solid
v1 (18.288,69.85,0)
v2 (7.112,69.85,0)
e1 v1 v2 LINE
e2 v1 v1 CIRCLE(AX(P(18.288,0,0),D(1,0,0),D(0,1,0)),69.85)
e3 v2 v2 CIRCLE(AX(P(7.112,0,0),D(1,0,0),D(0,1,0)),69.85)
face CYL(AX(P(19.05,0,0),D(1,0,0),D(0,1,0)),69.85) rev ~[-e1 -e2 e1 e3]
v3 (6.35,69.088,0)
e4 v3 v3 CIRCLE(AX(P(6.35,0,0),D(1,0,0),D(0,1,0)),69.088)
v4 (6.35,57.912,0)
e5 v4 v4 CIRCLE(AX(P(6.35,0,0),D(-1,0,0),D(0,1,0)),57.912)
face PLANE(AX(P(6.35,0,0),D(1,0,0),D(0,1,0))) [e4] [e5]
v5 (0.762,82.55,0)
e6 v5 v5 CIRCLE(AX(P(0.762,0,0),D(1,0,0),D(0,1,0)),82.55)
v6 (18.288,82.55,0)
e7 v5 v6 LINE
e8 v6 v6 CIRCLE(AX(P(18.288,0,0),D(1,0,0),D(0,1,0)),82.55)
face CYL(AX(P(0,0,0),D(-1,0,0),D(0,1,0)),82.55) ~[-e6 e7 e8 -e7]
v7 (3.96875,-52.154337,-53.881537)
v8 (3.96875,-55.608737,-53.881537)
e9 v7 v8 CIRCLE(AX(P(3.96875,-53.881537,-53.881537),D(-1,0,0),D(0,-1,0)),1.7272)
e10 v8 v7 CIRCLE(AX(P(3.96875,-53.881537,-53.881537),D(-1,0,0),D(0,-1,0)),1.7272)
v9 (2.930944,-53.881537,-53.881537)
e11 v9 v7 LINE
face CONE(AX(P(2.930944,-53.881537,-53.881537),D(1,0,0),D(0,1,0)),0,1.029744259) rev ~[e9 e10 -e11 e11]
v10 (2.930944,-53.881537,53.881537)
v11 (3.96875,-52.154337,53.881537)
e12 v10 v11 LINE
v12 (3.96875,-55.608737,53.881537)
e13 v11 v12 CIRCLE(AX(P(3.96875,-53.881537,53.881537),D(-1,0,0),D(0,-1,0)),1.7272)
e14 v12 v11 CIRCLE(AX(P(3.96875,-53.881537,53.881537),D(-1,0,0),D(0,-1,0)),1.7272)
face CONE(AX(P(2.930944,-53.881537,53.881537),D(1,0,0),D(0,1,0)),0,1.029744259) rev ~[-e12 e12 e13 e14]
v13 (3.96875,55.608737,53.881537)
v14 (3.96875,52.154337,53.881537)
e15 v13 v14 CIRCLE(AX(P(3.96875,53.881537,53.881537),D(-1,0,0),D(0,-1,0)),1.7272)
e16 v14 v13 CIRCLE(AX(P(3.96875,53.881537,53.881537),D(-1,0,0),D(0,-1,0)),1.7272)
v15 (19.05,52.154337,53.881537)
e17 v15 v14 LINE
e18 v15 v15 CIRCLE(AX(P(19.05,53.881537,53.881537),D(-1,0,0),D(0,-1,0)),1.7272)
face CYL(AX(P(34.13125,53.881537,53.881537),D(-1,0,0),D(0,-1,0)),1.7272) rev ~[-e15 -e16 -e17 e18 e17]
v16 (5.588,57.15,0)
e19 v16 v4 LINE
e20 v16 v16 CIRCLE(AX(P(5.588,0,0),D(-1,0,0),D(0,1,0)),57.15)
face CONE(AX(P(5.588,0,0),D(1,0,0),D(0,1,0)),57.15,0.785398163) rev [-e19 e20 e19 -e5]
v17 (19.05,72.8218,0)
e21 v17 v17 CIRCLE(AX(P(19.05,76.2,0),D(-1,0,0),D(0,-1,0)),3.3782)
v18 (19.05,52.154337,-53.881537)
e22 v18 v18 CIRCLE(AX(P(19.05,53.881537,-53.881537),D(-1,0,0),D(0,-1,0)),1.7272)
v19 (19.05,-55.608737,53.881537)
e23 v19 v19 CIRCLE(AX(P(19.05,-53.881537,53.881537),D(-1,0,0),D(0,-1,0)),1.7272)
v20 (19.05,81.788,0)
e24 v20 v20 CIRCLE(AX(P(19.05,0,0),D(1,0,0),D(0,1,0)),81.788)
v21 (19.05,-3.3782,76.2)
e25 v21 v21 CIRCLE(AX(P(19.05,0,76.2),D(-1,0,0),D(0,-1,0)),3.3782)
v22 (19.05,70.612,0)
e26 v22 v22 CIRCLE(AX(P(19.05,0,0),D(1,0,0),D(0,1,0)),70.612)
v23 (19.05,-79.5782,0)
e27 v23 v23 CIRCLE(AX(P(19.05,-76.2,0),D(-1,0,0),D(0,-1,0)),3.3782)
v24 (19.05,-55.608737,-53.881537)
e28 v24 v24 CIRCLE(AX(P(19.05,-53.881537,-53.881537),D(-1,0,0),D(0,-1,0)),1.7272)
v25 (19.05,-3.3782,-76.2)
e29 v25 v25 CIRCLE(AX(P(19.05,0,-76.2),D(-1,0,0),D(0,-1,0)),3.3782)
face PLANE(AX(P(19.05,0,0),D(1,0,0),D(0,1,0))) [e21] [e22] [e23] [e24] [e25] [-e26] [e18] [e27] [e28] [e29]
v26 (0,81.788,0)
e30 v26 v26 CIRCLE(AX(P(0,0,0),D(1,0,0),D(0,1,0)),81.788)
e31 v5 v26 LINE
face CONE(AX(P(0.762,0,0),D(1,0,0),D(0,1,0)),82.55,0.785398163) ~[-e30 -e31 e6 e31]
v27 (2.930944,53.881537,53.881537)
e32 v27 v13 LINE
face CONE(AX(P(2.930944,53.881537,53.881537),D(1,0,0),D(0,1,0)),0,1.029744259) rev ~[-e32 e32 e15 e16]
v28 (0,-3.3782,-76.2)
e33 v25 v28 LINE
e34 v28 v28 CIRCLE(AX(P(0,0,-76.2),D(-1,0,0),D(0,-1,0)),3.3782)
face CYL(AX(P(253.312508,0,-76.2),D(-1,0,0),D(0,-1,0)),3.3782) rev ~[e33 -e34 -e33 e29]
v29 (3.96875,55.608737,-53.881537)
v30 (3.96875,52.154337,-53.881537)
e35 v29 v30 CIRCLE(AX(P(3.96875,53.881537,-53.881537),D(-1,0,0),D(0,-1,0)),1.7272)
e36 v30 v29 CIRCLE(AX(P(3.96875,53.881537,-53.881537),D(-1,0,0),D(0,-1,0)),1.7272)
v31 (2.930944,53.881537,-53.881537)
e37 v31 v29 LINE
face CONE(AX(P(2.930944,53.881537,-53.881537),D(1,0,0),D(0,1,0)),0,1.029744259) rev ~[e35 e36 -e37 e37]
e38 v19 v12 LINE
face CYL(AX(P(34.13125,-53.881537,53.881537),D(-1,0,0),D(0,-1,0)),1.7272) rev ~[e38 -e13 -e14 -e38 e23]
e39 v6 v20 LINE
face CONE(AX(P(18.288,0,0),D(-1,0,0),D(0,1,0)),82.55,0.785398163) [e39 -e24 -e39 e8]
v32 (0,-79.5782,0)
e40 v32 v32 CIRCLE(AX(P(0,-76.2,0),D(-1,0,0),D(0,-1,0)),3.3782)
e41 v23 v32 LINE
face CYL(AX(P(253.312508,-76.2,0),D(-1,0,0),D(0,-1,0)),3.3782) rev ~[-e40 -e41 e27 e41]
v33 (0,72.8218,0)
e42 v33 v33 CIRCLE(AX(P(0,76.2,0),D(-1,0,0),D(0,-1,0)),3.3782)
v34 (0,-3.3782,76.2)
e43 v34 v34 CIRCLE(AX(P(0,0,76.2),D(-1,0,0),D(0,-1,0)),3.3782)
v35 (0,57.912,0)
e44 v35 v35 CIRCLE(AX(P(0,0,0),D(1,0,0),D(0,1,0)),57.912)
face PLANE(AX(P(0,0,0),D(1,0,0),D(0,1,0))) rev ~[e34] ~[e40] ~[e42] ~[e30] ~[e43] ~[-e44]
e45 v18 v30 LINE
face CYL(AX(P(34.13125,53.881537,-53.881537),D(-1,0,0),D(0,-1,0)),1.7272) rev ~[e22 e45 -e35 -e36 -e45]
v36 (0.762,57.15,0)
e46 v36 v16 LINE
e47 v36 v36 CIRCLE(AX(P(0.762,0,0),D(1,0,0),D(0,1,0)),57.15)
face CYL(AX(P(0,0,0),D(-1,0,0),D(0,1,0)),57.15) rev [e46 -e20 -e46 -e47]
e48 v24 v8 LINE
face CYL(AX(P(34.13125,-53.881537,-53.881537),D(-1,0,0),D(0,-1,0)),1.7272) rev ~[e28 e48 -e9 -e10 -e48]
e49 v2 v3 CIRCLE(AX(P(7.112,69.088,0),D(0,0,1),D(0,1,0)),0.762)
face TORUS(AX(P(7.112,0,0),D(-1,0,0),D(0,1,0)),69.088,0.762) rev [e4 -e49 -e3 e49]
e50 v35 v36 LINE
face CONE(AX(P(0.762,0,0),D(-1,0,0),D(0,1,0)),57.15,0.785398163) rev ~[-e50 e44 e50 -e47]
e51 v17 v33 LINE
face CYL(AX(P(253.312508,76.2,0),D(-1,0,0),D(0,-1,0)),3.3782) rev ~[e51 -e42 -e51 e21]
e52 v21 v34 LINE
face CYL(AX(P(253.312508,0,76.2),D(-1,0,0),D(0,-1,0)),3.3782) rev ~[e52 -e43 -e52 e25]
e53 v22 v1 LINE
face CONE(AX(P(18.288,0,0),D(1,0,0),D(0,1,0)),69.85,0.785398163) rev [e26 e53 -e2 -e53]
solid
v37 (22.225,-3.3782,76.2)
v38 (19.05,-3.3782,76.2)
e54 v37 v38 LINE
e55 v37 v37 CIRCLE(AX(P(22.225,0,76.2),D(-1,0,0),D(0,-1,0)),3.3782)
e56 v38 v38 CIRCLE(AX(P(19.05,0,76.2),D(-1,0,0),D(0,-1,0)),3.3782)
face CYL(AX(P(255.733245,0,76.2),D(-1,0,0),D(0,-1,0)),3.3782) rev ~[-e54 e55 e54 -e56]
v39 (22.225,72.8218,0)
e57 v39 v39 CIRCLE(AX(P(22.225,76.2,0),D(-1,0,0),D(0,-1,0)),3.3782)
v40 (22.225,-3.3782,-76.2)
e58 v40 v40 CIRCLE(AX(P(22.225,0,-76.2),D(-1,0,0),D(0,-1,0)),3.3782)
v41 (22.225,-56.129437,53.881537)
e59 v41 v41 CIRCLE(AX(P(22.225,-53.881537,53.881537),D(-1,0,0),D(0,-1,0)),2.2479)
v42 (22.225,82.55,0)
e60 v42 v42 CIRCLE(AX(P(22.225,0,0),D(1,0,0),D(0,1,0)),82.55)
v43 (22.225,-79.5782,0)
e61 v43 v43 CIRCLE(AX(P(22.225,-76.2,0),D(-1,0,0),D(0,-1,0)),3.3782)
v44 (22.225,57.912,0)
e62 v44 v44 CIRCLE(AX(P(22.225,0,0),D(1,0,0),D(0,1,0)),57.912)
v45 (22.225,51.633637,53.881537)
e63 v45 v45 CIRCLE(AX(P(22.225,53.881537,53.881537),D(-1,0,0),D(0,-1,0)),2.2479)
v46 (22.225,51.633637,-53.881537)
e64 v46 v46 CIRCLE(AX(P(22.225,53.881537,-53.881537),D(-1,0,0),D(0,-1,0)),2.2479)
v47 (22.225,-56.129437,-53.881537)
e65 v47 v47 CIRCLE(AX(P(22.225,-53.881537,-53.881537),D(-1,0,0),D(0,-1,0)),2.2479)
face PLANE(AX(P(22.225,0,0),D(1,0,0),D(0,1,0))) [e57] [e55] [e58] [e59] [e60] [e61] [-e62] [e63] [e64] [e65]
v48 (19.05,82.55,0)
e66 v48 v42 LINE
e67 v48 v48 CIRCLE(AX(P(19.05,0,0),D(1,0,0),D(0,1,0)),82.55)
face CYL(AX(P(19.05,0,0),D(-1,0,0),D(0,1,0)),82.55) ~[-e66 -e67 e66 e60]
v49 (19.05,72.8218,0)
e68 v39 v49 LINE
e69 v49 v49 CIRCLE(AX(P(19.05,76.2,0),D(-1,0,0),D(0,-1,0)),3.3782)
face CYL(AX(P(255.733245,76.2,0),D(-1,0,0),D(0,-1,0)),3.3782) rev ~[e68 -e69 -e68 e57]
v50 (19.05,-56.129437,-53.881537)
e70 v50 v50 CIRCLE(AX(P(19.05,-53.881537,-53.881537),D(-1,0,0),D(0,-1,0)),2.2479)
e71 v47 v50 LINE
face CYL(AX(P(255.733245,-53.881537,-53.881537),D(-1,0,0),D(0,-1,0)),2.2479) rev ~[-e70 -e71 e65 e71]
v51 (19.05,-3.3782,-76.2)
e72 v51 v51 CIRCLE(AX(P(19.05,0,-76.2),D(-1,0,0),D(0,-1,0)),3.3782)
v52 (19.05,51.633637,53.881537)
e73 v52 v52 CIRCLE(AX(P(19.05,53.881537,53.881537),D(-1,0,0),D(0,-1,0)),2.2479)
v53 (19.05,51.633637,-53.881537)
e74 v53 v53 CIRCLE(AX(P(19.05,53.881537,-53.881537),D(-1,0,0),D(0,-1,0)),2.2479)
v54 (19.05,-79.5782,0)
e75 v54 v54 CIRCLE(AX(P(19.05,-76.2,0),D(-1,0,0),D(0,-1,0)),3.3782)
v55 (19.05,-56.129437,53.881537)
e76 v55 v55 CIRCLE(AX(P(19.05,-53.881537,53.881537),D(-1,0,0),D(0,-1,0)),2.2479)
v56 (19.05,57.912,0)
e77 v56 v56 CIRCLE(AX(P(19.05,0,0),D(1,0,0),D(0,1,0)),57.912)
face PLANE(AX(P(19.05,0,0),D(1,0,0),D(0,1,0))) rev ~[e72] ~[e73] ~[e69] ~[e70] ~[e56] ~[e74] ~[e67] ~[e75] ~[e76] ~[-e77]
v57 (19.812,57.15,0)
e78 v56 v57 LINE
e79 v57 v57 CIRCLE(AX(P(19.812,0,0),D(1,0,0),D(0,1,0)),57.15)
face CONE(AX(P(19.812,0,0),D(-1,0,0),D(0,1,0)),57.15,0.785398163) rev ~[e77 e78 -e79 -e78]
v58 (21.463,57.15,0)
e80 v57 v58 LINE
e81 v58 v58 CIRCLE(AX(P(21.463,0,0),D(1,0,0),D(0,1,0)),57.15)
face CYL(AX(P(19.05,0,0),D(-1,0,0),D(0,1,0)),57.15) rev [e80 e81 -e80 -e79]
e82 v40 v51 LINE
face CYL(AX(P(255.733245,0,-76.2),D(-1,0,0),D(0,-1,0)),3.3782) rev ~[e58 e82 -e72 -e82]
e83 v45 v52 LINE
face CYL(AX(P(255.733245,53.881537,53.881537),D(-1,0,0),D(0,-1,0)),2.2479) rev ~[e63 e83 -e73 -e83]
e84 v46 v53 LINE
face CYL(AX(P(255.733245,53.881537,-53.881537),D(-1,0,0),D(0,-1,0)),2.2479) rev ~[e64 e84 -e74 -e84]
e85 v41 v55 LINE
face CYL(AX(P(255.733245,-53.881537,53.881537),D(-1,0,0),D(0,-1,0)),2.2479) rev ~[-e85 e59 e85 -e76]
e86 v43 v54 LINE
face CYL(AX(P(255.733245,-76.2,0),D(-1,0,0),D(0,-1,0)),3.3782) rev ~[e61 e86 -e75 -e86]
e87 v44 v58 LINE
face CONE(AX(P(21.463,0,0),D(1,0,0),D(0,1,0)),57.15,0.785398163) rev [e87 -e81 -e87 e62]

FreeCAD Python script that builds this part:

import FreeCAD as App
import Part
import Sketcher
Q = App.Units.Quantity


def edges_at(feature, points):
    """Names of the edges that pass closest to the given points."""
    edges = feature.Shape.Edges
    near = lambda p: min(range(len(edges)), key=lambda i: edges[i].distToShape(Part.Vertex(*p))[0])
    return sorted({f"Edge{near(p) + 1}" for p in points})

doc = App.newDocument("Part")
params = doc.addObject("Spreadsheet::Sheet", "Params")
for row, (alias, value) in enumerate([
    ("sketch1_diameter", "6.5 in"),
    ("sketch1_diameter2", "4.5 in"),
    ("pad1_length", "0.75 in"),
    ("sketch2_diameter", "5.5 in"),
    ("pocket1_length", "0.5 in"),
    ("sketch3_diameter", "0.266 in"),
    ("hole_diameter", "0.266 in"),
    ("sketch4_diameter", "0.136 in"),
    ("hole2_diameter", "0.136 in"),
    ("hole2_depth", "0.59375 in"),
    ("chamfer_size", "0.03 in"),
    ("fillet_radius", "0.03 in"),
    ("sketch5_diameter", "6.5 in"),
    ("sketch5_diameter2", "5.5 in"),
    ("pad2_length", "0.125 in"),
    ("sketch6_diameter", "5.5 in"),
    ("sketch6_diameter2", "4.5 in"),
    ("pad3_length", "0.125 in"),
    ("sketch7_diameter", "0.177 in"),
    ("hole3_diameter", "0.177 in"),
    ("chamfer2_size", "0.03 in"),
    ("sketch8_diameter", "0.266 in"),
    ("hole4_diameter", "0.266 in"),
], start=1):
    params.set(f"A{row}", alias)
    params.set(f"B{row}", "=" + value)
    params.setAlias(f"B{row}", alias)

body = doc.addObject("PartDesign::Body", "Body")

sketch1 = doc.addObject("Sketcher::SketchObject", "Sketch")
body.addObject(sketch1)
sketch1.AttachmentSupport = (doc.YZ_Plane, [""])
sketch1.MapMode = "FlatFace"
sketch1.addGeometry(Part.Circle(App.Vector(0, 0, 0), App.Vector(0, 0, 1), 83), False)
sketch1.addGeometry(Part.Circle(App.Vector(0, 0, 0), App.Vector(0, 0, 1), 57), False)
sketch1.addConstraint(Sketcher.Constraint("Coincident", 0, 3, -1, 1))
sketch1.addConstraint(Sketcher.Constraint("Coincident", 1, 3, -1, 1))
sketch1.addConstraint(Sketcher.Constraint("Diameter", 0, Q("6.5 in")))
sketch1.addConstraint(Sketcher.Constraint("Diameter", 1, Q("4.5 in")))
sketch1.setExpression("Constraints[2]", "Params.sketch1_diameter")
sketch1.setExpression("Constraints[3]", "Params.sketch1_diameter2")
pad1 = doc.addObject("PartDesign::Pad", "Pad")
body.addObject(pad1)
pad1.Profile = sketch1
pad1.setExpression("Length", "Params.pad1_length")

sketch2 = doc.addObject("Sketcher::SketchObject", "Sketch001")
body.addObject(sketch2)
sketch2.AttachmentSupport = (doc.YZ_Plane, [""])
sketch2.MapMode = "FlatFace"
sketch2.AttachmentOffset = App.Placement(App.Vector(0, 0, 0.75 * 25.4), App.Rotation())
sketch2.addGeometry(Part.Circle(App.Vector(0, 0, 0), App.Vector(0, 0, 1), 70), False)
sketch2.addConstraint(Sketcher.Constraint("Coincident", 0, 3, -1, 1))
sketch2.addConstraint(Sketcher.Constraint("Diameter", 0, Q("5.5 in")))
sketch2.setExpression("Constraints[1]", "Params.sketch2_diameter")
pocket1 = doc.addObject("PartDesign::Pocket", "Pocket")
body.addObject(pocket1)
pocket1.Profile = sketch2
pocket1.setExpression("Length", "Params.pocket1_length")

sketch3 = doc.addObject("Sketcher::SketchObject", "Sketch002")
body.addObject(sketch3)
sketch3.AttachmentSupport = (doc.YZ_Plane, [""])
sketch3.MapMode = "FlatFace"
sketch3.AttachmentOffset = App.Placement(App.Vector(0, 0, 0.75 * 25.4), App.Rotation())
sketch3.addGeometry(Part.Circle(App.Vector(0, 76.2, 0), App.Vector(0, 0, 1), 3.4), False)
sketch3.addGeometry(Part.Circle(App.Vector(76.2, 0, 0), App.Vector(0, 0, 1), 3.4), False)
sketch3.addGeometry(Part.Circle(App.Vector(0, -76.2, 0), App.Vector(0, 0, 1), 3.4), False)
sketch3.addGeometry(Part.Circle(App.Vector(-76.2, 0, 0), App.Vector(0, 0, 1), 3.4), False)
sketch3.addConstraint(Sketcher.Constraint("Equal", 0, 1))
sketch3.addConstraint(Sketcher.Constraint("Equal", 1, 2))
sketch3.addConstraint(Sketcher.Constraint("Equal", 2, 3))
sketch3.addConstraint(Sketcher.Constraint("Symmetric", 0, 3, 2, 3, -1, 1))
sketch3.addConstraint(Sketcher.Constraint("Symmetric", 1, 3, 3, 3, -1, 1))
sketch3.addConstraint(Sketcher.Constraint("PointOnObject", 0, 3, -2))
sketch3.addConstraint(Sketcher.Constraint("PointOnObject", 1, 3, -1))
sketch3.addConstraint(Sketcher.Constraint("Diameter", 0, Q("0.266 in")))
sketch3.addConstraint(Sketcher.Constraint("DistanceY", -1, 1, 0, 3, Q("3 in")))
sketch3.addConstraint(Sketcher.Constraint("DistanceX", -1, 1, 1, 3, Q("3 in")))
sketch3.setExpression("Constraints[7]", "Params.sketch3_diameter")
doc.recompute()
hole = doc.addObject("PartDesign::Hole", "Hole")
body.addObject(hole)
hole.Profile = sketch3
hole.ThreadType = "None"
hole.setExpression("Diameter", "Params.hole_diameter")
hole.DepthType = "ThroughAll"

sketch4 = doc.addObject("Sketcher::SketchObject", "Sketch003")
body.addObject(sketch4)
sketch4.AttachmentSupport = (doc.YZ_Plane, [""])
sketch4.MapMode = "FlatFace"
sketch4.AttachmentOffset = App.Placement(App.Vector(0, 0, 0.75 * 25.4), App.Rotation())
sketch4.addGeometry(Part.Circle(App.Vector(-53.9, 53.9, 0), App.Vector(0, 0, 1), 1.7), False)
sketch4.addGeometry(Part.Circle(App.Vector(53.9, 53.9, 0), App.Vector(0, 0, 1), 1.7), False)
sketch4.addGeometry(Part.Circle(App.Vector(-53.9, -53.9, 0), App.Vector(0, 0, 1), 1.7), False)
sketch4.addGeometry(Part.Circle(App.Vector(53.9, -53.9, 0), App.Vector(0, 0, 1), 1.7), False)
sketch4.addConstraint(Sketcher.Constraint("Equal", 0, 1))
sketch4.addConstraint(Sketcher.Constraint("Equal", 1, 2))
sketch4.addConstraint(Sketcher.Constraint("Equal", 2, 3))
sketch4.addConstraint(Sketcher.Constraint("Symmetric", 1, 3, 2, 3, -1, 1))
sketch4.addConstraint(Sketcher.Constraint("Symmetric", 0, 3, 3, 3, -1, 1))
sketch4.addConstraint(Sketcher.Constraint("Symmetric", 0, 3, 1, 3, -2))
sketch4.addConstraint(Sketcher.Constraint("Diameter", 0, Q("0.136 in")))
sketch4.addConstraint(Sketcher.Constraint("DistanceX", 0, 3, -1, 1, 53.881537))
sketch4.addConstraint(Sketcher.Constraint("DistanceY", -1, 1, 0, 3, 53.881537))
sketch4.setExpression("Constraints[6]", "Params.sketch4_diameter")
doc.recompute()
hole2 = doc.addObject("PartDesign::Hole", "Hole001")
body.addObject(hole2)
hole2.Profile = sketch4
hole2.ThreadType = "None"
hole2.setExpression("Diameter", "Params.hole2_diameter")
hole2.DepthType = "Dimension"
hole2.setExpression("Depth", "Params.hole2_depth")
hole2.DrillPoint = "Angled"
hole2.DrillPointAngle = 118
doc.recompute()

chamfer = doc.addObject("PartDesign::Chamfer", "Chamfer")
body.addObject(chamfer)
chamfer.Base = (hole2, edges_at(hole2, [
    (19.05, -69.85, 0),
    (19.05, -82.55, 0),
    (0, -82.55, 0),
    (6.35, -57.15, 0),
    (0, -57.15, 0),
]))
chamfer.setExpression("Size", "Params.chamfer_size")
doc.recompute()

fillet = doc.addObject("PartDesign::Fillet", "Fillet")
body.addObject(fillet)
fillet.Base = (chamfer, edges_at(chamfer, [(6.35, -69.85, 0)]))
fillet.setExpression("Radius", "Params.fillet_radius")
body2 = doc.addObject("PartDesign::Body", "Body001")

sketch5 = doc.addObject("Sketcher::SketchObject", "Sketch004")
body2.addObject(sketch5)
sketch5.AttachmentSupport = (doc.getObject("YZ_Plane001"), [""])
sketch5.MapMode = "FlatFace"
sketch5.AttachmentOffset = App.Placement(App.Vector(0, 0, 0.75 * 25.4), App.Rotation())
sketch5.addGeometry(Part.Circle(App.Vector(0, 0, 0), App.Vector(0, 0, 1), 83), False)
sketch5.addGeometry(Part.Circle(App.Vector(0, 0, 0), App.Vector(0, 0, 1), 70), False)
sketch5.addConstraint(Sketcher.Constraint("Coincident", 0, 3, -1, 1))
sketch5.addConstraint(Sketcher.Constraint("Coincident", 1, 3, -1, 1))
sketch5.addConstraint(Sketcher.Constraint("Diameter", 0, Q("6.5 in")))
sketch5.addConstraint(Sketcher.Constraint("Diameter", 1, Q("5.5 in")))
sketch5.setExpression("Constraints[2]", "Params.sketch5_diameter")
sketch5.setExpression("Constraints[3]", "Params.sketch5_diameter2")
pad2 = doc.addObject("PartDesign::Pad", "Pad001")
body2.addObject(pad2)
pad2.Profile = sketch5
pad2.setExpression("Length", "Params.pad2_length")
body3 = doc.addObject("PartDesign::Body", "Body002")

sketch6 = doc.addObject("Sketcher::SketchObject", "Sketch005")
body3.addObject(sketch6)
sketch6.AttachmentSupport = (doc.getObject("YZ_Plane002"), [""])
sketch6.MapMode = "FlatFace"
sketch6.AttachmentOffset = App.Placement(App.Vector(0, 0, 0.75 * 25.4), App.Rotation())
sketch6.addGeometry(Part.Circle(App.Vector(0, 0, 0), App.Vector(0, 0, 1), 70), False)
sketch6.addGeometry(Part.Circle(App.Vector(0, 0, 0), App.Vector(0, 0, 1), 57), False)
sketch6.addConstraint(Sketcher.Constraint("Coincident", 0, 3, -1, 1))
sketch6.addConstraint(Sketcher.Constraint("Coincident", 1, 3, -1, 1))
sketch6.addConstraint(Sketcher.Constraint("Diameter", 0, Q("5.5 in")))
sketch6.addConstraint(Sketcher.Constraint("Diameter", 1, Q("4.5 in")))
sketch6.setExpression("Constraints[2]", "Params.sketch6_diameter")
sketch6.setExpression("Constraints[3]", "Params.sketch6_diameter2")
pad3 = doc.addObject("PartDesign::Pad", "Pad002")
body3.addObject(pad3)
pad3.Profile = sketch6
pad3.setExpression("Length", "Params.pad3_length")
doc.recompute()

boolean = doc.addObject("PartDesign::Boolean", "Boolean")
body3.addObject(boolean)
boolean.Type = "Fuse"
boolean.addObjects([body2])

sketch7 = doc.addObject("Sketcher::SketchObject", "Sketch006")
body3.addObject(sketch7)
sketch7.AttachmentSupport = (doc.getObject("YZ_Plane002"), [""])
sketch7.MapMode = "FlatFace"
sketch7.AttachmentOffset = App.Placement(App.Vector(0, 0, 0.875 * 25.4), App.Rotation())
sketch7.addGeometry(Part.Circle(App.Vector(-53.9, 53.9, 0), App.Vector(0, 0, 1), 2.2), False)
sketch7.addGeometry(Part.Circle(App.Vector(53.9, 53.9, 0), App.Vector(0, 0, 1), 2.2), False)
sketch7.addGeometry(Part.Circle(App.Vector(-53.9, -53.9, 0), App.Vector(0, 0, 1), 2.2), False)
sketch7.addGeometry(Part.Circle(App.Vector(53.9, -53.9, 0), App.Vector(0, 0, 1), 2.2), False)
sketch7.addConstraint(Sketcher.Constraint("Equal", 0, 1))
sketch7.addConstraint(Sketcher.Constraint("Equal", 1, 2))
sketch7.addConstraint(Sketcher.Constraint("Equal", 2, 3))
sketch7.addConstraint(Sketcher.Constraint("Symmetric", 1, 3, 2, 3, -1, 1))
sketch7.addConstraint(Sketcher.Constraint("Symmetric", 0, 3, 3, 3, -1, 1))
sketch7.addConstraint(Sketcher.Constraint("Symmetric", 0, 3, 1, 3, -2))
sketch7.addConstraint(Sketcher.Constraint("Diameter", 0, Q("0.177 in")))
sketch7.addConstraint(Sketcher.Constraint("DistanceX", 0, 3, -1, 1, 53.881537))
sketch7.addConstraint(Sketcher.Constraint("DistanceY", -1, 1, 0, 3, 53.881537))
sketch7.setExpression("Constraints[6]", "Params.sketch7_diameter")
doc.recompute()
hole3 = doc.addObject("PartDesign::Hole", "Hole002")
body3.addObject(hole3)
hole3.Profile = sketch7
hole3.ThreadType = "None"
hole3.setExpression("Diameter", "Params.hole3_diameter")
hole3.DepthType = "ThroughAll"
doc.recompute()

chamfer2 = doc.addObject("PartDesign::Chamfer", "Chamfer001")
body3.addObject(chamfer2)
chamfer2.Base = (hole3, edges_at(hole3, [(22.225, -57.15, 0), (19.05, -57.15, 0)]))
chamfer2.setExpression("Size", "Params.chamfer2_size")

sketch8 = doc.addObject("Sketcher::SketchObject", "Sketch007")
body3.addObject(sketch8)
sketch8.AttachmentSupport = (doc.getObject("YZ_Plane002"), [""])
sketch8.MapMode = "FlatFace"
sketch8.AttachmentOffset = App.Placement(App.Vector(0, 0, 0.875 * 25.4), App.Rotation())
sketch8.addGeometry(Part.Circle(App.Vector(0, 76.2, 0), App.Vector(0, 0, 1), 3.4), False)
sketch8.addGeometry(Part.Circle(App.Vector(-76.2, 0, 0), App.Vector(0, 0, 1), 3.4), False)
sketch8.addGeometry(Part.Circle(App.Vector(0, -76.2, 0), App.Vector(0, 0, 1), 3.4), False)
sketch8.addGeometry(Part.Circle(App.Vector(76.2, 0, 0), App.Vector(0, 0, 1), 3.4), False)
sketch8.addConstraint(Sketcher.Constraint("Equal", 0, 1))
sketch8.addConstraint(Sketcher.Constraint("Equal", 1, 2))
sketch8.addConstraint(Sketcher.Constraint("Equal", 2, 3))
sketch8.addConstraint(Sketcher.Constraint("Symmetric", 0, 3, 2, 3, -1, 1))
sketch8.addConstraint(Sketcher.Constraint("Symmetric", 1, 3, 3, 3, -1, 1))
sketch8.addConstraint(Sketcher.Constraint("PointOnObject", 0, 3, -2))
sketch8.addConstraint(Sketcher.Constraint("PointOnObject", 1, 3, -1))
sketch8.addConstraint(Sketcher.Constraint("Diameter", 0, Q("0.266 in")))
sketch8.addConstraint(Sketcher.Constraint("DistanceY", -1, 1, 0, 3, Q("3 in")))
sketch8.addConstraint(Sketcher.Constraint("DistanceX", 1, 3, -1, 1, Q("3 in")))
sketch8.setExpression("Constraints[7]", "Params.sketch8_diameter")
doc.recompute()
hole4 = doc.addObject("PartDesign::Hole", "Hole003")
body3.addObject(hole4)
hole4.Profile = sketch8
hole4.ThreadType = "None"
hole4.setExpression("Diameter", "Params.hole4_diameter")
hole4.DepthType = "ThroughAll"

doc.recompute()
